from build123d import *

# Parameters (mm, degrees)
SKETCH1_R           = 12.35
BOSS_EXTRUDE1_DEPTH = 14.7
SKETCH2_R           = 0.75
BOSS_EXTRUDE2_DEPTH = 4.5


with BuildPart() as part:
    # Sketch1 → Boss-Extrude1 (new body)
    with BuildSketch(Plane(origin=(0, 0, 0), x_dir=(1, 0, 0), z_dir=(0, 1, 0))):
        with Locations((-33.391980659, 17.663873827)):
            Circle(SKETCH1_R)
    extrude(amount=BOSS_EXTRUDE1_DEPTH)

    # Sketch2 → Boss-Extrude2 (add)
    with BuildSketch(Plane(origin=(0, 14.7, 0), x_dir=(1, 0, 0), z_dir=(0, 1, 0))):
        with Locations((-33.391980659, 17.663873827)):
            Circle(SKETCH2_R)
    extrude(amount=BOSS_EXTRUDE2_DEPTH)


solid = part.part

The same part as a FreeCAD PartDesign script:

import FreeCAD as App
import Part
import Sketcher
from FreeCAD import Vector

doc = App.newDocument("Part")
body = doc.addObject("PartDesign::Body", "Body")

# Sketch on XZ plane
sketch1 = body.newObject("Sketcher::SketchObject", "Sketch")
sketch1.AttachmentSupport = (doc.getObject("XZ_Plane"), [""])
sketch1.MapMode = "FlatFace"
sketch1.addGeometry(Part.Circle(Vector(-33, -18, 0), Vector(0, 0, 1), 12), False)
sketch1.addConstraint(Sketcher.Constraint("Diameter", 0, 24.7))
sketch1.addConstraint(Sketcher.Constraint("DistanceX", 0, 3, -1, 1, 33.391981))
sketch1.addConstraint(Sketcher.Constraint("DistanceY", 0, 3, -1, 1, 17.663874))
pad1 = body.newObject("PartDesign::Pad", "Pad")
pad1.Profile = sketch1
pad1.Length = 14.7
pad1.Reversed = True

# Sketch on XZ plane
sketch2 = body.newObject("Sketcher::SketchObject", "Sketch001")
sketch2.AttachmentSupport = (doc.getObject("XZ_Plane"), [""])
sketch2.MapMode = "FlatFace"
sketch2.AttachmentOffset = App.Placement(Vector(0, 0, -14.7), App.Rotation())
sketch2.addGeometry(Part.Circle(Vector(-33.4, -17.7, 0), Vector(0, 0, 1), 0.8), False)
sketch2.addConstraint(Sketcher.Constraint("Diameter", 0, 1.5))
sketch2.addConstraint(Sketcher.Constraint("DistanceX", 0, 3, -1, 1, 33.391981))
sketch2.addConstraint(Sketcher.Constraint("DistanceY", 0, 3, -1, 1, 17.663874))
pad2 = body.newObject("PartDesign::Pad", "Pad001")
pad2.Profile = sketch2
pad2.Length = 4.5
pad2.Reversed = True

doc.recompute()
